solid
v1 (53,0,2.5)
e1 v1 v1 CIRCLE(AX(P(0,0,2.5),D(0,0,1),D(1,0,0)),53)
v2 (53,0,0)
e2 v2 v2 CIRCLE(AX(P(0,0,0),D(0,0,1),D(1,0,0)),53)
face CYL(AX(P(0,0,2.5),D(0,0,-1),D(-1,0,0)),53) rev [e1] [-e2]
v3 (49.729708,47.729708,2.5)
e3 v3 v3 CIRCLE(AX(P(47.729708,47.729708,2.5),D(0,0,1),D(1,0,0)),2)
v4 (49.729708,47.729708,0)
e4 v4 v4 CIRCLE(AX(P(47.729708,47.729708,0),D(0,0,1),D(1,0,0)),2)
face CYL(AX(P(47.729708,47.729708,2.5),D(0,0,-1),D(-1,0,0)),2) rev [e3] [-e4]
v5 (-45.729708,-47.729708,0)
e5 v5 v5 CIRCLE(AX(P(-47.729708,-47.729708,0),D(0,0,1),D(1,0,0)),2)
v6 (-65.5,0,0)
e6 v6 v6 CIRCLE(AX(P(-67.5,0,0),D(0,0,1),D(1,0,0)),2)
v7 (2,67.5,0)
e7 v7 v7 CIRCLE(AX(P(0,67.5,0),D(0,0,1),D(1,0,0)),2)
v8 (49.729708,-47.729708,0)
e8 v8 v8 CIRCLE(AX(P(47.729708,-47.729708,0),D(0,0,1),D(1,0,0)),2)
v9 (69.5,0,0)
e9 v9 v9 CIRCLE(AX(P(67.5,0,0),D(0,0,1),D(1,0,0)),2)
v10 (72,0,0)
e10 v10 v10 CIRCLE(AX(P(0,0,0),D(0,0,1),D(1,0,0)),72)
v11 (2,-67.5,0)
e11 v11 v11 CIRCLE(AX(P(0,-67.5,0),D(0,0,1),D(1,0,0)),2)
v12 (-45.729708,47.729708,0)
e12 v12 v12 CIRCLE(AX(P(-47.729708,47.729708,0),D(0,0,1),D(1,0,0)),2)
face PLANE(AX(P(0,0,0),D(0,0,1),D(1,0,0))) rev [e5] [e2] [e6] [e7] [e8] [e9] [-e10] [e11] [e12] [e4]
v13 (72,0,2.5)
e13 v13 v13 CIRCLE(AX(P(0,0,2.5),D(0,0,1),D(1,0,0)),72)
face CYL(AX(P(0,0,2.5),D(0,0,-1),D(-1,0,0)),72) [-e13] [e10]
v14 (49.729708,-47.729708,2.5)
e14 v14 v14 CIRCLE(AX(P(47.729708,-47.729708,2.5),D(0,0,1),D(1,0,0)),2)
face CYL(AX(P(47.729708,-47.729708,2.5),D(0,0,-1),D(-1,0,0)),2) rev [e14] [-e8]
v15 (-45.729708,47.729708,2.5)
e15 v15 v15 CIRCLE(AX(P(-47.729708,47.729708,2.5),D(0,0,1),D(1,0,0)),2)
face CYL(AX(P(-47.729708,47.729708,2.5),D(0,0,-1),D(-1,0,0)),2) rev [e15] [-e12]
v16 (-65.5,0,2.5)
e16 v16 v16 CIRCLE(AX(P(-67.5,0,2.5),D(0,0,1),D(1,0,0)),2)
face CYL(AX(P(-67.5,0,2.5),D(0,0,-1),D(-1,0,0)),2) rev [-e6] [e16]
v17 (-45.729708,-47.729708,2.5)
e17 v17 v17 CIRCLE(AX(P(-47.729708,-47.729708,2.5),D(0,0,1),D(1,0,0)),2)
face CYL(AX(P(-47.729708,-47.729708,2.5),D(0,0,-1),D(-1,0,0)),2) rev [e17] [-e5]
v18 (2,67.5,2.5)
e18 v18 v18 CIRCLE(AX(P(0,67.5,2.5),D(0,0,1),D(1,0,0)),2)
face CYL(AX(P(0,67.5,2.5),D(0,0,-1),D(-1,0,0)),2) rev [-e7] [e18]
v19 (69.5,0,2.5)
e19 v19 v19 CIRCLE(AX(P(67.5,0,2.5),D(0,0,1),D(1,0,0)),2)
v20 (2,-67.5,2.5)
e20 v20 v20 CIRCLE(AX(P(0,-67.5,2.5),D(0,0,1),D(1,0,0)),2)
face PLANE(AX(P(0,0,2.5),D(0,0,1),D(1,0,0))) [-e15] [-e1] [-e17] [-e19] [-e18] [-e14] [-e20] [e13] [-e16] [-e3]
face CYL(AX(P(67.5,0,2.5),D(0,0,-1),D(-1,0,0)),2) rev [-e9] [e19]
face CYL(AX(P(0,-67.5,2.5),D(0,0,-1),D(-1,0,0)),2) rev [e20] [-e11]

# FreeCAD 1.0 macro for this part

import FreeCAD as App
import Part
import Sketcher

doc = App.newDocument("Part")
params = doc.addObject("Spreadsheet::Sheet", "Params")
for row, (alias, value) in enumerate([
    ("sketch1_diameter", "144 mm"),
    ("sketch1_diameter2", "4 mm"),
    ("sketch1_diameter3", "106 mm"),
    ("pad1_length", "2.5 mm"),
], start=1):
    params.set(f"A{row}", alias)
    params.set(f"B{row}", "=" + value)
    params.setAlias(f"B{row}", alias)

body = doc.addObject("PartDesign::Body", "Body")

sketch1 = body.newObject("Sketcher::SketchObject", "Sketch")
sketch1.AttachmentSupport = (doc.getObject("XY_Plane"), [""])
sketch1.MapMode = "FlatFace"
sketch1.addGeometry([
    Part.Circle(App.Vector(0, 0, 0), App.Vector(0, 0, 1), 72),
    Part.Circle(App.Vector(-47.729708, -47.729708, 0), App.Vector(0, 0, 1), 2),
    Part.Circle(App.Vector(0, -67.5, 0), App.Vector(0, 0, 1), 2),
    Part.Circle(App.Vector(47.729708, -47.729708, 0), App.Vector(0, 0, 1), 2),
    Part.Circle(App.Vector(-67.5, 0, 0), App.Vector(0, 0, 1), 2),
    Part.Circle(App.Vector(-47.729708, 47.729708, 0), App.Vector(0, 0, 1), 2),
    Part.Circle(App.Vector(0, 0, 0), App.Vector(0, 0, 1), 53),
    Part.Circle(App.Vector(67.5, 0, 0), App.Vector(0, 0, 1), 2),
    Part.Circle(App.Vector(0, 67.5, 0), App.Vector(0, 0, 1), 2),
    Part.Circle(App.Vector(47.729708, 47.729708, 0), App.Vector(0, 0, 1), 2),
], False)
sketch1.addConstraint([
    Sketcher.Constraint("Coincident", 0, 3, -1, 1),
    Sketcher.Constraint("Coincident", 6, 3, -1, 1),
    Sketcher.Constraint("Equal", 1, 2),
    Sketcher.Constraint("Equal", 2, 3),
    Sketcher.Constraint("Equal", 3, 4),
    Sketcher.Constraint("Equal", 4, 5),
    Sketcher.Constraint("Equal", 5, 7),
    Sketcher.Constraint("Equal", 7, 8),
    Sketcher.Constraint("Equal", 8, 9),
    Sketcher.Constraint("Symmetric", 3, 3, 5, 3, -1, 1),
    Sketcher.Constraint("Symmetric", 4, 3, 7, 3, -1, 1),
    Sketcher.Constraint("Symmetric", 2, 3, 8, 3, -1, 1),
    Sketcher.Constraint("Symmetric", 1, 3, 9, 3, -1, 1),
    Sketcher.Constraint("Symmetric", 1, 3, 3, 3, -2),
    Sketcher.Constraint("PointOnObject", 2, 3, -2),
    Sketcher.Constraint("PointOnObject", 4, 3, -1),
    Sketcher.Constraint("Diameter", 0, 144.0),
    Sketcher.Constraint("Diameter", 1, 4.0),
    Sketcher.Constraint("Diameter", 6, 106.0),
    Sketcher.Constraint("DistanceY", 2, 3, -1, 1, 67.5),
    Sketcher.Constraint("DistanceX", 4, 3, -1, 1, 67.5),
    Sketcher.Constraint("DistanceX", 1, 3, -1, 1, 47.729708),
    Sketcher.Constraint("DistanceY", 1, 3, -1, 1, 47.729708),
])
sketch1.setExpression("Constraints[16]", "Params.sketch1_diameter")
sketch1.setExpression("Constraints[17]", "Params.sketch1_diameter2")
sketch1.setExpression("Constraints[18]", "Params.sketch1_diameter3")
pad1 = body.newObject("PartDesign::Pad", "Pad")
pad1.Profile = sketch1
pad1.setExpression("Length", "Params.pad1_length")

doc.recompute()
